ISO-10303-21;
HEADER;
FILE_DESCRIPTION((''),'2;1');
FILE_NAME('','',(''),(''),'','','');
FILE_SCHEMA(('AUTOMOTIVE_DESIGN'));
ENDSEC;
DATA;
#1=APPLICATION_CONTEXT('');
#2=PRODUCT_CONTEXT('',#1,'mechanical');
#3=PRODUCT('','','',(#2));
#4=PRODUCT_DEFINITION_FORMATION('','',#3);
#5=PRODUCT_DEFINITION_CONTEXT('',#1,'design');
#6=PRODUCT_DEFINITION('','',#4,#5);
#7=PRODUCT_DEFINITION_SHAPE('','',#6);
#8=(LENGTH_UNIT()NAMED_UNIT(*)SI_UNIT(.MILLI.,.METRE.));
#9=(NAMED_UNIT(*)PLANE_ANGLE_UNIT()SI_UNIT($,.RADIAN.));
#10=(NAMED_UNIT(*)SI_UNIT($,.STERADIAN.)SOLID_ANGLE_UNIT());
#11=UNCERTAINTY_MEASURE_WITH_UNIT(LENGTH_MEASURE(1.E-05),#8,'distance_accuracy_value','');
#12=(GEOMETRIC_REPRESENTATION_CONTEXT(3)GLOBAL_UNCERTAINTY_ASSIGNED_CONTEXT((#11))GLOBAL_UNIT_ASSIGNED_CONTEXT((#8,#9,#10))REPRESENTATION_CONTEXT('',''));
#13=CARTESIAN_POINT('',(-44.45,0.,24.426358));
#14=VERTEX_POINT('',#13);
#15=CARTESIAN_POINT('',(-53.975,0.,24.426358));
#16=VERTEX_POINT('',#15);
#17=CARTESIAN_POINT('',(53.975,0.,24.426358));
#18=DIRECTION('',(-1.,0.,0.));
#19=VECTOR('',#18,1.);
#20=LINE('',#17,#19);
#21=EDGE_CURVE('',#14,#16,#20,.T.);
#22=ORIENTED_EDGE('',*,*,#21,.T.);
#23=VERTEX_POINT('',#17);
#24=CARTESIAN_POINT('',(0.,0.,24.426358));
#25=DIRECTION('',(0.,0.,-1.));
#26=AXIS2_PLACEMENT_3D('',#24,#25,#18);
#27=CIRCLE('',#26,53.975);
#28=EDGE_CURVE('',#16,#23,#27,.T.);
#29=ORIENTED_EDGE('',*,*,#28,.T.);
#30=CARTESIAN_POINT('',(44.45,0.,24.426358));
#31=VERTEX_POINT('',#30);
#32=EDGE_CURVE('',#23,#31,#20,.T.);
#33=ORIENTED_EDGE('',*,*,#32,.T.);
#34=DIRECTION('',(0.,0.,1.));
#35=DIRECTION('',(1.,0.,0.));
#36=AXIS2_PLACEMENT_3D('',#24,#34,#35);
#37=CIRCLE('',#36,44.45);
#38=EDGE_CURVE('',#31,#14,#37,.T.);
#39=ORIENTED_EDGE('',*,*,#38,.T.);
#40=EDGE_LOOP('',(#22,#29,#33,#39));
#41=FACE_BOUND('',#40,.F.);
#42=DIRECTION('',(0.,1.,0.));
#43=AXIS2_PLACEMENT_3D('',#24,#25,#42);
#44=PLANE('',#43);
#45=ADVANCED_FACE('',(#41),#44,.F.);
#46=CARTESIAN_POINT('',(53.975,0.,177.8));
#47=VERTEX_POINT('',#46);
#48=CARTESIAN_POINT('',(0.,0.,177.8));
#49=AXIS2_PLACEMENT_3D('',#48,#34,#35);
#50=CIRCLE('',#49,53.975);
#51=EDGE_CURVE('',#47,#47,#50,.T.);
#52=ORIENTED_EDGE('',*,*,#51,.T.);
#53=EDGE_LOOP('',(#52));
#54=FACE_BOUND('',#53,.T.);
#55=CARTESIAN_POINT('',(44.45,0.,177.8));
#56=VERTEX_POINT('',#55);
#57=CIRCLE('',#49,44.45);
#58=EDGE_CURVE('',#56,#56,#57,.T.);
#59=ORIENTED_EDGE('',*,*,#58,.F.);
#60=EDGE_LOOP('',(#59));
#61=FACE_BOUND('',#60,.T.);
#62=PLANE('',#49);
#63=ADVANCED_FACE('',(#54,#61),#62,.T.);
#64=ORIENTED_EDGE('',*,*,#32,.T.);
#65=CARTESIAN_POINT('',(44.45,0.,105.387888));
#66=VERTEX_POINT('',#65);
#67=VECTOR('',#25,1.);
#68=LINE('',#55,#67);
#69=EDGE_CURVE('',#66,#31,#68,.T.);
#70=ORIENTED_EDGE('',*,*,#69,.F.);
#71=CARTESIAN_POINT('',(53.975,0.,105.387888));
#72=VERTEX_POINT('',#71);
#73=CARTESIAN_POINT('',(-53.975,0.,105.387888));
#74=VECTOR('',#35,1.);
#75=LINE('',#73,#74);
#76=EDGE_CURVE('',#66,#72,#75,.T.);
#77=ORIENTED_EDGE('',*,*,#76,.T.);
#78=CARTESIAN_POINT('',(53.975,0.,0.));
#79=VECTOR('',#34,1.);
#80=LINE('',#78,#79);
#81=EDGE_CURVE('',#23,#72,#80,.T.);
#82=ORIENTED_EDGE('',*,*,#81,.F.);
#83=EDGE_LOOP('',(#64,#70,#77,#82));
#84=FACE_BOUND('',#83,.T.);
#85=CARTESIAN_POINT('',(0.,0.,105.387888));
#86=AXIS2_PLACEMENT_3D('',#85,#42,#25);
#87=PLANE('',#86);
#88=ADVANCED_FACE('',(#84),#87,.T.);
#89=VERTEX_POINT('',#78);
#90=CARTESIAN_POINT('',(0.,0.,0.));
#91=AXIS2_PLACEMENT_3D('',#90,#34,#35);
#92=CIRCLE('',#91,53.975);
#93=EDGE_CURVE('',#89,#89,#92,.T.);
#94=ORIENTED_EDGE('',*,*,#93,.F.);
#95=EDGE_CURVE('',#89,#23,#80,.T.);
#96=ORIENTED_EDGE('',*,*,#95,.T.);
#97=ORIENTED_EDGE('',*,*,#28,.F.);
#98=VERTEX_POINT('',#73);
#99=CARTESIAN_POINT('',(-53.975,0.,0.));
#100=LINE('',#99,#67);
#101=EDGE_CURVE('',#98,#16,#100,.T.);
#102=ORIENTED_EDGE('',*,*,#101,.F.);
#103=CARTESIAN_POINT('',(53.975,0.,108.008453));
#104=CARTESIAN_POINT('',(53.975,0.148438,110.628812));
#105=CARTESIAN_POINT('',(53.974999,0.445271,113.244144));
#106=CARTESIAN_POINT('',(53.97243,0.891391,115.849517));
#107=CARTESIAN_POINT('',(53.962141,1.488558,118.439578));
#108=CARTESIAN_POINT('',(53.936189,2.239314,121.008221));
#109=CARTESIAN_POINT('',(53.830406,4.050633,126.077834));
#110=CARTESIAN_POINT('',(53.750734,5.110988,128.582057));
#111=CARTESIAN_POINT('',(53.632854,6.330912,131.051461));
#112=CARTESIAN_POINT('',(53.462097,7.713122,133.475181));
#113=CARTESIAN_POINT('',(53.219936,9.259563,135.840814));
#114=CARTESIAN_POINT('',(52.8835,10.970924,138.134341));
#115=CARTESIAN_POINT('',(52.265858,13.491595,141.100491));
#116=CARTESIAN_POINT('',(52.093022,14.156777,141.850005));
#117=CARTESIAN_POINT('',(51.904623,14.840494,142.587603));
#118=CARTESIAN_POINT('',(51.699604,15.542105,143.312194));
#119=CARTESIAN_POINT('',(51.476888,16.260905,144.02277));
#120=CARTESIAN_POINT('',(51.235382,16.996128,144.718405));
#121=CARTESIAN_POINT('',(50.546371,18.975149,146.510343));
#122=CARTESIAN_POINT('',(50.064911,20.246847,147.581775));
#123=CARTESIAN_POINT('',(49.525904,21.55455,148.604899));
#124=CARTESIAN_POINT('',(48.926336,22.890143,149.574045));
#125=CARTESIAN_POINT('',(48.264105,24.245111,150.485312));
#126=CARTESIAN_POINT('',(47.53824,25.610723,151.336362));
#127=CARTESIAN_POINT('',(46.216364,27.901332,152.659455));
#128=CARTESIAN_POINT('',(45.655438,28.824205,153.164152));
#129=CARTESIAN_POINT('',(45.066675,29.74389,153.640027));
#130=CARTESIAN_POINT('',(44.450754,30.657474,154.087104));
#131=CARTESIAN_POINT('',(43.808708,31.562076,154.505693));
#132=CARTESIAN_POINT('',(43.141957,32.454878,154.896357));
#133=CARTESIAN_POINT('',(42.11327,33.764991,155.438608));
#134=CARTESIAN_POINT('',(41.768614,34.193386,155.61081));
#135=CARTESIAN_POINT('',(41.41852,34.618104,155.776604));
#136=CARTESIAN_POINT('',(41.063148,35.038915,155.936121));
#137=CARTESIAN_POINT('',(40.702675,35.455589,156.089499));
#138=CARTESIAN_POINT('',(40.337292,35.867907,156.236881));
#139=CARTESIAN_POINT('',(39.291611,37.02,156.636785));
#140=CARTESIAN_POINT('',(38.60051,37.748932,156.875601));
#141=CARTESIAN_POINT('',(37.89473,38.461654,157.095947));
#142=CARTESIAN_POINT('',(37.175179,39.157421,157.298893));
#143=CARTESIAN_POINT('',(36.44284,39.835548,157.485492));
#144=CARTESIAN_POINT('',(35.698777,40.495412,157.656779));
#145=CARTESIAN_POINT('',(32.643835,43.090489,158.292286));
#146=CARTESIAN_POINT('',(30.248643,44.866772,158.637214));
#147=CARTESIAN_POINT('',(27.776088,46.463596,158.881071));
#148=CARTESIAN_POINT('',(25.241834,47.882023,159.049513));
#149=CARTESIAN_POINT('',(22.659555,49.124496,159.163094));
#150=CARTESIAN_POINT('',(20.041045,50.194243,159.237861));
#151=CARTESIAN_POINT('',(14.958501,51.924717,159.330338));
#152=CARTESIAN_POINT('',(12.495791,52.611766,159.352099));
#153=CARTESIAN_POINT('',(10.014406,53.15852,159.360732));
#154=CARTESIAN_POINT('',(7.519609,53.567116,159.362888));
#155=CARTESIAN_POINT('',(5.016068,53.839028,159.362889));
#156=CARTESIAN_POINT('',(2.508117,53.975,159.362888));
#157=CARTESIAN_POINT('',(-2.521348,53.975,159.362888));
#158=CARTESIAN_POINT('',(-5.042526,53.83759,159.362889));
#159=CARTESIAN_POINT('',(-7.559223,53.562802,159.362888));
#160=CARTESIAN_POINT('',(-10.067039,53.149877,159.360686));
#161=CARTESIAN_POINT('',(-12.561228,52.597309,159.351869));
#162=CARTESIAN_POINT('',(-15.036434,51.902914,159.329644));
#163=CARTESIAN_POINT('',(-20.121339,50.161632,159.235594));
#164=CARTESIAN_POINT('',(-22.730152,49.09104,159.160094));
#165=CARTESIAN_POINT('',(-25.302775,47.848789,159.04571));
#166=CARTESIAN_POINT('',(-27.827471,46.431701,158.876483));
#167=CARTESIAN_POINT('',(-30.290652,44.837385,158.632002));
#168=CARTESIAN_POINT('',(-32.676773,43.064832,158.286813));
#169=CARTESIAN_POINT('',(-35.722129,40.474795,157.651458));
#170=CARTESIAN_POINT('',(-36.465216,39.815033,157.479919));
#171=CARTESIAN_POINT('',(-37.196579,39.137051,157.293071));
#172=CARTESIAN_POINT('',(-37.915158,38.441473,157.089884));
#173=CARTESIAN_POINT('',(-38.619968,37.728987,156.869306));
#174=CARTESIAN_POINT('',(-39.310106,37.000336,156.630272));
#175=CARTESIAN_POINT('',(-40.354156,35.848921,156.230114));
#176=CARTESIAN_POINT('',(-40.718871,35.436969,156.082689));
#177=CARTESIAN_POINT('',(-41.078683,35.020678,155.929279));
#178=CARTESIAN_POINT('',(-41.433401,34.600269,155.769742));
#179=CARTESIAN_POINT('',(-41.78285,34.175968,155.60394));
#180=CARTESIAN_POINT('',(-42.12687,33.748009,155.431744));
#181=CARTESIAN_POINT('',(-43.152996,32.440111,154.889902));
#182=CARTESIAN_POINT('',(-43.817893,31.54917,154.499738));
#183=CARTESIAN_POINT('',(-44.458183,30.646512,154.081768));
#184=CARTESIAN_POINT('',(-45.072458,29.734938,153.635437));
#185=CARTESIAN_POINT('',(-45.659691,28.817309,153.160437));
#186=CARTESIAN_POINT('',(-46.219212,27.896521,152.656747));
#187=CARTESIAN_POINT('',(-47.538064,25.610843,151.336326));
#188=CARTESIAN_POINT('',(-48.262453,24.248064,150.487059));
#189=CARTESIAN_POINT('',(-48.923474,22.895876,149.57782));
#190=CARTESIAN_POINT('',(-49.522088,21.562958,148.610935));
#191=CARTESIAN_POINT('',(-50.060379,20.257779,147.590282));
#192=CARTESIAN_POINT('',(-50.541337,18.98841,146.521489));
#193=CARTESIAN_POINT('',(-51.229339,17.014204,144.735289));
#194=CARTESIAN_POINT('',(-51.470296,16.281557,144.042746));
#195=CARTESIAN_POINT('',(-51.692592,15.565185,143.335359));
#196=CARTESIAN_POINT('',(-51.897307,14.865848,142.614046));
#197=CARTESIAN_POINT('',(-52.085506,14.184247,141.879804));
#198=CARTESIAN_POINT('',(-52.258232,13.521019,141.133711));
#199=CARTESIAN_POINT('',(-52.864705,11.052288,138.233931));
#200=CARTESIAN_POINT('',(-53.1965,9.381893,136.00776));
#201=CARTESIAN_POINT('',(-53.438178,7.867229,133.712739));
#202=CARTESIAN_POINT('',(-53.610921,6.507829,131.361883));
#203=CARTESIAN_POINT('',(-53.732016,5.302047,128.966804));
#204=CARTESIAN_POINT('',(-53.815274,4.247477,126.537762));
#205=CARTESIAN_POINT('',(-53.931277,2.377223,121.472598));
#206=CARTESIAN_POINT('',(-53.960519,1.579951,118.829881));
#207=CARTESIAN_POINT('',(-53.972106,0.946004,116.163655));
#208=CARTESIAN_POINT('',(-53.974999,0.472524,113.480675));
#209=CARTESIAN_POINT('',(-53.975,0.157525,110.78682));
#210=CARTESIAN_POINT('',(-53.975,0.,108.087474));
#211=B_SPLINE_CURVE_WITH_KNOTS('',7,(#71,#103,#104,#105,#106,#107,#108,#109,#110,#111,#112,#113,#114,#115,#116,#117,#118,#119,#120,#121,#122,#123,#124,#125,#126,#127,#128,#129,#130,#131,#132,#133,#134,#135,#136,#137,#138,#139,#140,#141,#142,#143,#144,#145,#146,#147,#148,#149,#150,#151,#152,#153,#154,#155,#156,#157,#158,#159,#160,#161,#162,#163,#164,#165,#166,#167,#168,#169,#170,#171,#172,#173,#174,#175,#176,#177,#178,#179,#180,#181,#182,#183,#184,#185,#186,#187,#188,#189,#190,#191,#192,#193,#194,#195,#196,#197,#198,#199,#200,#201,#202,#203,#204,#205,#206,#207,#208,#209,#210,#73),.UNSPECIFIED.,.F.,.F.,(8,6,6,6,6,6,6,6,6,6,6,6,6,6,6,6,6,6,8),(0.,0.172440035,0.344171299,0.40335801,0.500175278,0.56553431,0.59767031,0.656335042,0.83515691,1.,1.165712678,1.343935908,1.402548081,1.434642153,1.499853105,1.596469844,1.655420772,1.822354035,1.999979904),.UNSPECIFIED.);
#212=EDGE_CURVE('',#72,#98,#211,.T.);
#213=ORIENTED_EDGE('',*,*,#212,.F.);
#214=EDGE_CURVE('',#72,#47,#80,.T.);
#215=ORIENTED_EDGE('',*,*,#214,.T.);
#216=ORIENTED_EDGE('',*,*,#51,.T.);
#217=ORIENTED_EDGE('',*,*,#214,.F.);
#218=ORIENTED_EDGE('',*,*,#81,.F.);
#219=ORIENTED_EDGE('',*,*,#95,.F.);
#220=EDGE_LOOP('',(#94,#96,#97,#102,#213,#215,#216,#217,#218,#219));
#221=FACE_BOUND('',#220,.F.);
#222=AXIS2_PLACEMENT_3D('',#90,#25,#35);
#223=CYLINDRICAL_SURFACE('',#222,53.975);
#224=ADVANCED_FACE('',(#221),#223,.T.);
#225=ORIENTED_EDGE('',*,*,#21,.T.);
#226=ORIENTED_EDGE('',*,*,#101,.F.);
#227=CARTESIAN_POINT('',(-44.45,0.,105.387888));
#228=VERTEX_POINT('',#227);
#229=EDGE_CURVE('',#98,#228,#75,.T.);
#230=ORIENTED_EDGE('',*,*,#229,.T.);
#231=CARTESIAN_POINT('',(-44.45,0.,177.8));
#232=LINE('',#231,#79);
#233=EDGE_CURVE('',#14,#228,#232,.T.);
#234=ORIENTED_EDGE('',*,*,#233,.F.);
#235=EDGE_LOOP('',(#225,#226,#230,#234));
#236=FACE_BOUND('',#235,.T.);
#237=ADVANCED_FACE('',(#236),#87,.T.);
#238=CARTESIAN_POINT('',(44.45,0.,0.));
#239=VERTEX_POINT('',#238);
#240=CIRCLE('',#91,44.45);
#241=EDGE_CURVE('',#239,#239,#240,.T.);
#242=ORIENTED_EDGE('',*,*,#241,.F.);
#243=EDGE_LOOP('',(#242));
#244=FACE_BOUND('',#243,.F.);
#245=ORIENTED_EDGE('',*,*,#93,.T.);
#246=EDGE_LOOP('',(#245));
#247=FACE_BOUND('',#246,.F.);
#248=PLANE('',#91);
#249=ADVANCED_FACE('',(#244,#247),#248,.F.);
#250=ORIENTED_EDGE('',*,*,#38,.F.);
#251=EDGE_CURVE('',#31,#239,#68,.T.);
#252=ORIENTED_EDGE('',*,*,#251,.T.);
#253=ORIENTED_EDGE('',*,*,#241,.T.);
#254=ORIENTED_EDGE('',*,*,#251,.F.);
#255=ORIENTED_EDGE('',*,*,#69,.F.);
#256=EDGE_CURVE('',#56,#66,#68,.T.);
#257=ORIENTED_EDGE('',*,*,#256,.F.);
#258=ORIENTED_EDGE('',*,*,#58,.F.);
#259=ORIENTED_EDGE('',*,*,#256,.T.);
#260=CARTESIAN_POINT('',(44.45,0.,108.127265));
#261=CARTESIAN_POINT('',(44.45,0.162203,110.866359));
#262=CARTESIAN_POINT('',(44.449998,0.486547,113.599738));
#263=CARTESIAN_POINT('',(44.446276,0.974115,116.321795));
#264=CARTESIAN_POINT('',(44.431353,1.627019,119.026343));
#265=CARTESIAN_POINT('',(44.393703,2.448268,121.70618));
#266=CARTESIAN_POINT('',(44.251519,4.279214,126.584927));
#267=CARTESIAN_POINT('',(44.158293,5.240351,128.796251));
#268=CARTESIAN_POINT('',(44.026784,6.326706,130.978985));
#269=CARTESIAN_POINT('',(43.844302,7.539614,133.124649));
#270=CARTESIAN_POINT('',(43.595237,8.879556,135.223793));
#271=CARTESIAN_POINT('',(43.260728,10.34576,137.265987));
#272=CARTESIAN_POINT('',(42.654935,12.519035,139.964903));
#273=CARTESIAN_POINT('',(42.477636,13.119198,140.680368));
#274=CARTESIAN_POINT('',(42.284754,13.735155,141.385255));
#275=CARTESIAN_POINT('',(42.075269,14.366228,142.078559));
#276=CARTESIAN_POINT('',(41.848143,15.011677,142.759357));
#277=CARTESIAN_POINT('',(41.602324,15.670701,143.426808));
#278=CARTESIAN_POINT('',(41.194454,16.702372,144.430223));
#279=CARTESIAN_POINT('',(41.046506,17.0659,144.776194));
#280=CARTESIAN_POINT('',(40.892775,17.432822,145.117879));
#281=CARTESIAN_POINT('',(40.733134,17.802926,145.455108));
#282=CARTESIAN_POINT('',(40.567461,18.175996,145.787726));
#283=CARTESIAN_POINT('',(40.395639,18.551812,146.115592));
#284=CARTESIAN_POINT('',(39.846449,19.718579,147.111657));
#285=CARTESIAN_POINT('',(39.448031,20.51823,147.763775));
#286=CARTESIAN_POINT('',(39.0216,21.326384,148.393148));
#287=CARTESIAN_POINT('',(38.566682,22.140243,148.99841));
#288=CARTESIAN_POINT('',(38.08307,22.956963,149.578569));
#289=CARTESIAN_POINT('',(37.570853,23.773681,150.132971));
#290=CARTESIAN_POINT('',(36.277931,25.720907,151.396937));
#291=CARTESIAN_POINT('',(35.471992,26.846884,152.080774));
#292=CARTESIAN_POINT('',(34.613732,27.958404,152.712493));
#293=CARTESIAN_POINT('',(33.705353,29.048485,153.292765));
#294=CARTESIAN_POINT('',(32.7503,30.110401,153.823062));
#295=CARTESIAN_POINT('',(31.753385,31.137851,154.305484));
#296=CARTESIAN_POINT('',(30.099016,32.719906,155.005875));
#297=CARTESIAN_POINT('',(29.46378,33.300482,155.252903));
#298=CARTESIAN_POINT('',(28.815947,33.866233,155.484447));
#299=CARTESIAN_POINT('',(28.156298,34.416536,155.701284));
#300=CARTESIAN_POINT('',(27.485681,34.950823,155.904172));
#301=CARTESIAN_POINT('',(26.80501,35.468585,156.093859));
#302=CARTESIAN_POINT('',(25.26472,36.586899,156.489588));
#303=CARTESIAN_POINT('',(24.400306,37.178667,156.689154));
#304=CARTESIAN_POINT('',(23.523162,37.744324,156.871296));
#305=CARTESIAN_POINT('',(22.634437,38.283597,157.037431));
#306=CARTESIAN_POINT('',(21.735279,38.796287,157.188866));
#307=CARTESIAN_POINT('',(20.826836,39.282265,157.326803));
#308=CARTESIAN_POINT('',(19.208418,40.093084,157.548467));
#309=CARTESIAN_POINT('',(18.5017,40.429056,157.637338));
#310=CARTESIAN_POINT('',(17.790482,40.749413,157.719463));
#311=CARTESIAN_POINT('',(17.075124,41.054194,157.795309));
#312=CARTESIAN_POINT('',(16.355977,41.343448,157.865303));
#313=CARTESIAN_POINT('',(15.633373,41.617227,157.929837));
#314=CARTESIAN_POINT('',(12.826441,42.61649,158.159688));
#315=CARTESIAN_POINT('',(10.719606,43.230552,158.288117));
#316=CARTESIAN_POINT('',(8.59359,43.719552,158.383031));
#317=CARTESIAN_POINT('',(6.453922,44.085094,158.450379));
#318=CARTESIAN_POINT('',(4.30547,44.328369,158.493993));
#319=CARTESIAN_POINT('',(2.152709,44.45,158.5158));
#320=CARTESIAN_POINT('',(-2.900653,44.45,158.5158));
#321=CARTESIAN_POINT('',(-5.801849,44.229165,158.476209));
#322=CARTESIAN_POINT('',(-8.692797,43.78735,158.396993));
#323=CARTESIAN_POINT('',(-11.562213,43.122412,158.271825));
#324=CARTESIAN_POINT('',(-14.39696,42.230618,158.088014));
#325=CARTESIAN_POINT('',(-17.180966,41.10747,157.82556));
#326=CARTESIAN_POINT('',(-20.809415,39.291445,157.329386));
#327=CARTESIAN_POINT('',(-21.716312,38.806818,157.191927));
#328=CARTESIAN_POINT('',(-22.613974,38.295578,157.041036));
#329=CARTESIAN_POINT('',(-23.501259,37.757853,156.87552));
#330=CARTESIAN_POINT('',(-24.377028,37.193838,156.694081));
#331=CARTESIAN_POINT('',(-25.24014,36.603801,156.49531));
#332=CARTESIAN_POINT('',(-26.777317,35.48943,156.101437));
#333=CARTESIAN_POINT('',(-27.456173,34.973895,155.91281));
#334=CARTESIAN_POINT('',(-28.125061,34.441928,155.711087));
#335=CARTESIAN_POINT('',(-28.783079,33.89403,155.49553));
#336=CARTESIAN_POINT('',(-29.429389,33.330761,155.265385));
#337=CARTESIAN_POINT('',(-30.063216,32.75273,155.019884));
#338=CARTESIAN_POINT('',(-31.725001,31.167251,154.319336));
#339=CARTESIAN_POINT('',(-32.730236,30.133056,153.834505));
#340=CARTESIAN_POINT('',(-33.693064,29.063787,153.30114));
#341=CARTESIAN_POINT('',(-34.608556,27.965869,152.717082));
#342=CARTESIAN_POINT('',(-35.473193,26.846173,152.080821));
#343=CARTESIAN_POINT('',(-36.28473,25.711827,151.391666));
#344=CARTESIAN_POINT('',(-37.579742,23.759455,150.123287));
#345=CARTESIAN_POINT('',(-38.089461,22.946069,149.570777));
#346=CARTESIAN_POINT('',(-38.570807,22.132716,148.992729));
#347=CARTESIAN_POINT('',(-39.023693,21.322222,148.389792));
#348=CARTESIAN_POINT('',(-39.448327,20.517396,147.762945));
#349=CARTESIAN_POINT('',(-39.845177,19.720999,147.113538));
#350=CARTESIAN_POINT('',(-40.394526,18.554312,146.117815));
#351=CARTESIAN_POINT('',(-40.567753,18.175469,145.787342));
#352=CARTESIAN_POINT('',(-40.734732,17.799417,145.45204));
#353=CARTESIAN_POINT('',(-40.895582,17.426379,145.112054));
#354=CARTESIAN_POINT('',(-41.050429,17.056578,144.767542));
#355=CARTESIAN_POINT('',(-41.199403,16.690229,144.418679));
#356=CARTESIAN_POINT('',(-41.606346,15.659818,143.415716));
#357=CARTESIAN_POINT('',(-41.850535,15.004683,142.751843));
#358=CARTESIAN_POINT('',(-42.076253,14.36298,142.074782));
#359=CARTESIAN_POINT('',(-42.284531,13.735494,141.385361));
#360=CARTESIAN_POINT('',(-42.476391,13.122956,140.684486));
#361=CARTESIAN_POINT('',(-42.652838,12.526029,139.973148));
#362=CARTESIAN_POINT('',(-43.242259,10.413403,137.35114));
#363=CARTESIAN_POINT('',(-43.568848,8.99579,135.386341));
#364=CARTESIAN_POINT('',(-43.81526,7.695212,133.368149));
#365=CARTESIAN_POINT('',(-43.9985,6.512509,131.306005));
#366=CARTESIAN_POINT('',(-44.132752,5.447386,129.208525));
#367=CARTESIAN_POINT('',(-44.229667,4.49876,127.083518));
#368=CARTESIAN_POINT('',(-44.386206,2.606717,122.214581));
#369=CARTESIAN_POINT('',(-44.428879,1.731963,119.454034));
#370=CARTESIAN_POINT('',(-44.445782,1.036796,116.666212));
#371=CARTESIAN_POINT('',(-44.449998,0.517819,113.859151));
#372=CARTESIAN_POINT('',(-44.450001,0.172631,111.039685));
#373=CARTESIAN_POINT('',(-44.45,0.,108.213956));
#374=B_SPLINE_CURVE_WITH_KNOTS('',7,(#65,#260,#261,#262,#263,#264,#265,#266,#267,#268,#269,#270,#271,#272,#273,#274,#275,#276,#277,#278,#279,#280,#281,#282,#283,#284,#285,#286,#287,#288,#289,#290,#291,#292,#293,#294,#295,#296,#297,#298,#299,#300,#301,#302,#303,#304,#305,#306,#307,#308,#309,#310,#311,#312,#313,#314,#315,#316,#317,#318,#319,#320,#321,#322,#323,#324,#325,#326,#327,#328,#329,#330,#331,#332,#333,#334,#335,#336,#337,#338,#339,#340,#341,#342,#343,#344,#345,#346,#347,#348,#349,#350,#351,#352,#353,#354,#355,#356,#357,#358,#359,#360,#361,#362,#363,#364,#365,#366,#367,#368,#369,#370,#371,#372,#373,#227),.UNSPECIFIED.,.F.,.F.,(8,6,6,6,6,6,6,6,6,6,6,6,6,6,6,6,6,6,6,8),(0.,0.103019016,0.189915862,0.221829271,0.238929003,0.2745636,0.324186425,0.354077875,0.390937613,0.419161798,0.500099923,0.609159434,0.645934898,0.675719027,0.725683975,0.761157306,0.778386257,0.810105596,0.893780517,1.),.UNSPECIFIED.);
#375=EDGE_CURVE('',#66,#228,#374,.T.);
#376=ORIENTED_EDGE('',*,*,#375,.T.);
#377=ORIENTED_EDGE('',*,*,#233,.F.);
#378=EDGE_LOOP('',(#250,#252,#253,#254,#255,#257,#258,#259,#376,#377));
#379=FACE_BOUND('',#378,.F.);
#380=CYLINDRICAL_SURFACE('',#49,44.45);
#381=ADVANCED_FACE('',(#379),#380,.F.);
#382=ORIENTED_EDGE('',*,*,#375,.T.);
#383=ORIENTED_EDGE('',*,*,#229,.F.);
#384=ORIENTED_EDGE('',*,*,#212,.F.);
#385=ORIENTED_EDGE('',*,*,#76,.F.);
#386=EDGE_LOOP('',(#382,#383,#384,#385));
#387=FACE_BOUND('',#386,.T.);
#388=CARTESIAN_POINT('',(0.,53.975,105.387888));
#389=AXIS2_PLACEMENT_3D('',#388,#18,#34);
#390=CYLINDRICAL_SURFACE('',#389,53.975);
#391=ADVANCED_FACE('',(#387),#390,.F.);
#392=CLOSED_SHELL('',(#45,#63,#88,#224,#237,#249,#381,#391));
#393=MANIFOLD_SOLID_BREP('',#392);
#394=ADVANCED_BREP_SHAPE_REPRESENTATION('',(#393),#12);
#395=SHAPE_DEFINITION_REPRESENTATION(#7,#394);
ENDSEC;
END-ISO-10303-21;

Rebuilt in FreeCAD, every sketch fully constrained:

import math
import FreeCAD as App
import Part
import Sketcher
Q = App.Units.Quantity

doc = App.newDocument("Part")
body = doc.addObject("PartDesign::Body", "Body")

# Sketch on XY plane
sketch1 = doc.addObject("Sketcher::SketchObject", "Sketch")
body.addObject(sketch1)
sketch1.AttachmentSupport = (doc.XY_Plane, [""])
sketch1.MapMode = "FlatFace"
sketch1.addGeometry(Part.Circle(App.Vector(0, 0, 0), App.Vector(0, 0, 1), 54), False)
sketch1.addConstraint(Sketcher.Constraint("Coincident", 0, 3, -1, 1))
sketch1.addConstraint(Sketcher.Constraint("Diameter", 0, Q("4.25 in")))
pad1 = doc.addObject("PartDesign::Pad", "Pad")
body.addObject(pad1)
pad1.Profile = sketch1
pad1.Length = Q("7 in")

# Sketch on YZ plane
sketch2 = doc.addObject("Sketcher::SketchObject", "Sketch001")
body.addObject(sketch2)
sketch2.AttachmentSupport = (doc.YZ_Plane, [""])
sketch2.MapMode = "FlatFace"
sketch2.addGeometry(Part.LineSegment(App.Vector(54, 24, 0), App.Vector(54, 159, 0)), False)
sketch2.addGeometry(Part.ArcOfCircle(Part.Circle(App.Vector(54, 105, 0), App.Vector(0, 0, 1), 54), math.radians(90), math.radians(180)), False)
sketch2.addGeometry(Part.LineSegment(App.Vector(0, 105, 0), App.Vector(0, 24, 0)), False)
sketch2.addGeometry(Part.LineSegment(App.Vector(0, 24, 0), App.Vector(54, 24, 0)), False)
sketch2.addConstraint(Sketcher.Constraint("Coincident", 0, 2, 1, 1))
sketch2.addConstraint(Sketcher.Constraint("Tangent", 1, 2, 2, 1))
sketch2.addConstraint(Sketcher.Constraint("Coincident", 2, 2, 3, 1))
sketch2.addConstraint(Sketcher.Constraint("Coincident", 3, 2, 0, 1))
sketch2.addConstraint(Sketcher.Constraint("Vertical", 0))
sketch2.addConstraint(Sketcher.Constraint("Vertical", 2))
sketch2.addConstraint(Sketcher.Constraint("Horizontal", 3))
sketch2.addConstraint(Sketcher.Constraint("PointOnObject", 1, 2, -2))
sketch2.addConstraint(Sketcher.Constraint("Vertical", 1, 3, 0, 2))
sketch2.addConstraint(Sketcher.Constraint("Radius", 1, Q("2.125 in")))
sketch2.addConstraint(Sketcher.Constraint("DistanceY", 0, 1, 0, 2, Q("134.936531 mm")))
sketch2.addConstraint(Sketcher.Constraint("DistanceY", -1, 1, 1, 3, Q("105.387888 mm")))
pocket1 = doc.addObject("PartDesign::Pocket", "Pocket")
body.addObject(pocket1)
pocket1.Profile = sketch2
pocket1.Type = "ThroughAll"
pocket1.Midplane = True

# Sketch on XY plane
sketch3 = doc.addObject("Sketcher::SketchObject", "Sketch002")
body.addObject(sketch3)
sketch3.AttachmentSupport = (doc.XY_Plane, [""])
sketch3.MapMode = "FlatFace"
sketch3.AttachmentOffset = App.Placement(App.Vector(0, 0, 7 * 25.4), App.Rotation())
sketch3.addGeometry(Part.Circle(App.Vector(0, 0, 0), App.Vector(0, 0, 1), 44), False)
sketch3.addConstraint(Sketcher.Constraint("Coincident", 0, 3, -1, 1))
sketch3.addConstraint(Sketcher.Constraint("Diameter", 0, Q("3.5 in")))
pocket2 = doc.addObject("PartDesign::Pocket", "Pocket001")
body.addObject(pocket2)
pocket2.Profile = sketch3
pocket2.Length = Q("10.23 in")

doc.recompute()
